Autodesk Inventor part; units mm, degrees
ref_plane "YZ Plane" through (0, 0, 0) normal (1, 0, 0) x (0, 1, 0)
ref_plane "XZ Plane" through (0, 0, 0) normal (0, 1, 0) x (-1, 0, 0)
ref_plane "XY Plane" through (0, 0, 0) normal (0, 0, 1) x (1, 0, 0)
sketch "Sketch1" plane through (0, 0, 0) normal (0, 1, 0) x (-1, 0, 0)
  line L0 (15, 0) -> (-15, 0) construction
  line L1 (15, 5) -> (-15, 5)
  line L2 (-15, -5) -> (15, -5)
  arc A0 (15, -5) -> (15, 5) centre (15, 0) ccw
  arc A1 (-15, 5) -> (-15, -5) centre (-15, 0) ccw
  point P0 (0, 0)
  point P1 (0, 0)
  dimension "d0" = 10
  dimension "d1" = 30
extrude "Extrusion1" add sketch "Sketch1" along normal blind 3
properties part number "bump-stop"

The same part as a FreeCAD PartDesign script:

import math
import FreeCAD as App
import Part
import Sketcher

V = App.Vector
Q = App.Units.Quantity

doc = App.newDocument("Part")
body = doc.addObject("PartDesign::Body", "Body")

sketch1 = doc.addObject("Sketcher::SketchObject", "Sketch")
body.addObject(sketch1)
sketch1.AttachmentSupport = (doc.XZ_Plane, [""])
sketch1.MapMode = "FlatFace"
sketch1.addGeometry(Part.ArcOfCircle(Part.Circle(V(-15, 0, 0), V(0, 0, 1), 5), math.radians(90), math.radians(270)), False)
sketch1.addGeometry(Part.LineSegment(V(-15, 5, 0), V(15, 5, 0)), False)
sketch1.addGeometry(Part.ArcOfCircle(Part.Circle(V(15, 0, 0), V(0, 0, 1), 5), math.radians(-90), math.radians(90)), False)
sketch1.addGeometry(Part.LineSegment(V(15, -5, 0), V(-15, -5, 0)), False)
sketch1.addConstraint(Sketcher.Constraint("Tangent", 0, 1, 1, 1))
sketch1.addConstraint(Sketcher.Constraint("Tangent", 1, 2, 2, 2))
sketch1.addConstraint(Sketcher.Constraint("Tangent", 2, 1, 3, 1))
sketch1.addConstraint(Sketcher.Constraint("Tangent", 3, 2, 0, 2))
sketch1.addConstraint(Sketcher.Constraint("Horizontal", 1))
sketch1.addConstraint(Sketcher.Constraint("Horizontal", 3))
sketch1.addConstraint(Sketcher.Constraint("Symmetric", 0, 3, 2, 3, -1, 1))
sketch1.addConstraint(Sketcher.Constraint("Radius", 0, Q("5 mm")))
sketch1.addConstraint(Sketcher.Constraint("DistanceX", 1, 1, 1, 2, Q("30 mm")))
pad1 = doc.addObject("PartDesign::Pad", "Pad")
body.addObject(pad1)
pad1.Profile = sketch1
pad1.Length = 3
pad1.Reversed = True

doc.recompute()
